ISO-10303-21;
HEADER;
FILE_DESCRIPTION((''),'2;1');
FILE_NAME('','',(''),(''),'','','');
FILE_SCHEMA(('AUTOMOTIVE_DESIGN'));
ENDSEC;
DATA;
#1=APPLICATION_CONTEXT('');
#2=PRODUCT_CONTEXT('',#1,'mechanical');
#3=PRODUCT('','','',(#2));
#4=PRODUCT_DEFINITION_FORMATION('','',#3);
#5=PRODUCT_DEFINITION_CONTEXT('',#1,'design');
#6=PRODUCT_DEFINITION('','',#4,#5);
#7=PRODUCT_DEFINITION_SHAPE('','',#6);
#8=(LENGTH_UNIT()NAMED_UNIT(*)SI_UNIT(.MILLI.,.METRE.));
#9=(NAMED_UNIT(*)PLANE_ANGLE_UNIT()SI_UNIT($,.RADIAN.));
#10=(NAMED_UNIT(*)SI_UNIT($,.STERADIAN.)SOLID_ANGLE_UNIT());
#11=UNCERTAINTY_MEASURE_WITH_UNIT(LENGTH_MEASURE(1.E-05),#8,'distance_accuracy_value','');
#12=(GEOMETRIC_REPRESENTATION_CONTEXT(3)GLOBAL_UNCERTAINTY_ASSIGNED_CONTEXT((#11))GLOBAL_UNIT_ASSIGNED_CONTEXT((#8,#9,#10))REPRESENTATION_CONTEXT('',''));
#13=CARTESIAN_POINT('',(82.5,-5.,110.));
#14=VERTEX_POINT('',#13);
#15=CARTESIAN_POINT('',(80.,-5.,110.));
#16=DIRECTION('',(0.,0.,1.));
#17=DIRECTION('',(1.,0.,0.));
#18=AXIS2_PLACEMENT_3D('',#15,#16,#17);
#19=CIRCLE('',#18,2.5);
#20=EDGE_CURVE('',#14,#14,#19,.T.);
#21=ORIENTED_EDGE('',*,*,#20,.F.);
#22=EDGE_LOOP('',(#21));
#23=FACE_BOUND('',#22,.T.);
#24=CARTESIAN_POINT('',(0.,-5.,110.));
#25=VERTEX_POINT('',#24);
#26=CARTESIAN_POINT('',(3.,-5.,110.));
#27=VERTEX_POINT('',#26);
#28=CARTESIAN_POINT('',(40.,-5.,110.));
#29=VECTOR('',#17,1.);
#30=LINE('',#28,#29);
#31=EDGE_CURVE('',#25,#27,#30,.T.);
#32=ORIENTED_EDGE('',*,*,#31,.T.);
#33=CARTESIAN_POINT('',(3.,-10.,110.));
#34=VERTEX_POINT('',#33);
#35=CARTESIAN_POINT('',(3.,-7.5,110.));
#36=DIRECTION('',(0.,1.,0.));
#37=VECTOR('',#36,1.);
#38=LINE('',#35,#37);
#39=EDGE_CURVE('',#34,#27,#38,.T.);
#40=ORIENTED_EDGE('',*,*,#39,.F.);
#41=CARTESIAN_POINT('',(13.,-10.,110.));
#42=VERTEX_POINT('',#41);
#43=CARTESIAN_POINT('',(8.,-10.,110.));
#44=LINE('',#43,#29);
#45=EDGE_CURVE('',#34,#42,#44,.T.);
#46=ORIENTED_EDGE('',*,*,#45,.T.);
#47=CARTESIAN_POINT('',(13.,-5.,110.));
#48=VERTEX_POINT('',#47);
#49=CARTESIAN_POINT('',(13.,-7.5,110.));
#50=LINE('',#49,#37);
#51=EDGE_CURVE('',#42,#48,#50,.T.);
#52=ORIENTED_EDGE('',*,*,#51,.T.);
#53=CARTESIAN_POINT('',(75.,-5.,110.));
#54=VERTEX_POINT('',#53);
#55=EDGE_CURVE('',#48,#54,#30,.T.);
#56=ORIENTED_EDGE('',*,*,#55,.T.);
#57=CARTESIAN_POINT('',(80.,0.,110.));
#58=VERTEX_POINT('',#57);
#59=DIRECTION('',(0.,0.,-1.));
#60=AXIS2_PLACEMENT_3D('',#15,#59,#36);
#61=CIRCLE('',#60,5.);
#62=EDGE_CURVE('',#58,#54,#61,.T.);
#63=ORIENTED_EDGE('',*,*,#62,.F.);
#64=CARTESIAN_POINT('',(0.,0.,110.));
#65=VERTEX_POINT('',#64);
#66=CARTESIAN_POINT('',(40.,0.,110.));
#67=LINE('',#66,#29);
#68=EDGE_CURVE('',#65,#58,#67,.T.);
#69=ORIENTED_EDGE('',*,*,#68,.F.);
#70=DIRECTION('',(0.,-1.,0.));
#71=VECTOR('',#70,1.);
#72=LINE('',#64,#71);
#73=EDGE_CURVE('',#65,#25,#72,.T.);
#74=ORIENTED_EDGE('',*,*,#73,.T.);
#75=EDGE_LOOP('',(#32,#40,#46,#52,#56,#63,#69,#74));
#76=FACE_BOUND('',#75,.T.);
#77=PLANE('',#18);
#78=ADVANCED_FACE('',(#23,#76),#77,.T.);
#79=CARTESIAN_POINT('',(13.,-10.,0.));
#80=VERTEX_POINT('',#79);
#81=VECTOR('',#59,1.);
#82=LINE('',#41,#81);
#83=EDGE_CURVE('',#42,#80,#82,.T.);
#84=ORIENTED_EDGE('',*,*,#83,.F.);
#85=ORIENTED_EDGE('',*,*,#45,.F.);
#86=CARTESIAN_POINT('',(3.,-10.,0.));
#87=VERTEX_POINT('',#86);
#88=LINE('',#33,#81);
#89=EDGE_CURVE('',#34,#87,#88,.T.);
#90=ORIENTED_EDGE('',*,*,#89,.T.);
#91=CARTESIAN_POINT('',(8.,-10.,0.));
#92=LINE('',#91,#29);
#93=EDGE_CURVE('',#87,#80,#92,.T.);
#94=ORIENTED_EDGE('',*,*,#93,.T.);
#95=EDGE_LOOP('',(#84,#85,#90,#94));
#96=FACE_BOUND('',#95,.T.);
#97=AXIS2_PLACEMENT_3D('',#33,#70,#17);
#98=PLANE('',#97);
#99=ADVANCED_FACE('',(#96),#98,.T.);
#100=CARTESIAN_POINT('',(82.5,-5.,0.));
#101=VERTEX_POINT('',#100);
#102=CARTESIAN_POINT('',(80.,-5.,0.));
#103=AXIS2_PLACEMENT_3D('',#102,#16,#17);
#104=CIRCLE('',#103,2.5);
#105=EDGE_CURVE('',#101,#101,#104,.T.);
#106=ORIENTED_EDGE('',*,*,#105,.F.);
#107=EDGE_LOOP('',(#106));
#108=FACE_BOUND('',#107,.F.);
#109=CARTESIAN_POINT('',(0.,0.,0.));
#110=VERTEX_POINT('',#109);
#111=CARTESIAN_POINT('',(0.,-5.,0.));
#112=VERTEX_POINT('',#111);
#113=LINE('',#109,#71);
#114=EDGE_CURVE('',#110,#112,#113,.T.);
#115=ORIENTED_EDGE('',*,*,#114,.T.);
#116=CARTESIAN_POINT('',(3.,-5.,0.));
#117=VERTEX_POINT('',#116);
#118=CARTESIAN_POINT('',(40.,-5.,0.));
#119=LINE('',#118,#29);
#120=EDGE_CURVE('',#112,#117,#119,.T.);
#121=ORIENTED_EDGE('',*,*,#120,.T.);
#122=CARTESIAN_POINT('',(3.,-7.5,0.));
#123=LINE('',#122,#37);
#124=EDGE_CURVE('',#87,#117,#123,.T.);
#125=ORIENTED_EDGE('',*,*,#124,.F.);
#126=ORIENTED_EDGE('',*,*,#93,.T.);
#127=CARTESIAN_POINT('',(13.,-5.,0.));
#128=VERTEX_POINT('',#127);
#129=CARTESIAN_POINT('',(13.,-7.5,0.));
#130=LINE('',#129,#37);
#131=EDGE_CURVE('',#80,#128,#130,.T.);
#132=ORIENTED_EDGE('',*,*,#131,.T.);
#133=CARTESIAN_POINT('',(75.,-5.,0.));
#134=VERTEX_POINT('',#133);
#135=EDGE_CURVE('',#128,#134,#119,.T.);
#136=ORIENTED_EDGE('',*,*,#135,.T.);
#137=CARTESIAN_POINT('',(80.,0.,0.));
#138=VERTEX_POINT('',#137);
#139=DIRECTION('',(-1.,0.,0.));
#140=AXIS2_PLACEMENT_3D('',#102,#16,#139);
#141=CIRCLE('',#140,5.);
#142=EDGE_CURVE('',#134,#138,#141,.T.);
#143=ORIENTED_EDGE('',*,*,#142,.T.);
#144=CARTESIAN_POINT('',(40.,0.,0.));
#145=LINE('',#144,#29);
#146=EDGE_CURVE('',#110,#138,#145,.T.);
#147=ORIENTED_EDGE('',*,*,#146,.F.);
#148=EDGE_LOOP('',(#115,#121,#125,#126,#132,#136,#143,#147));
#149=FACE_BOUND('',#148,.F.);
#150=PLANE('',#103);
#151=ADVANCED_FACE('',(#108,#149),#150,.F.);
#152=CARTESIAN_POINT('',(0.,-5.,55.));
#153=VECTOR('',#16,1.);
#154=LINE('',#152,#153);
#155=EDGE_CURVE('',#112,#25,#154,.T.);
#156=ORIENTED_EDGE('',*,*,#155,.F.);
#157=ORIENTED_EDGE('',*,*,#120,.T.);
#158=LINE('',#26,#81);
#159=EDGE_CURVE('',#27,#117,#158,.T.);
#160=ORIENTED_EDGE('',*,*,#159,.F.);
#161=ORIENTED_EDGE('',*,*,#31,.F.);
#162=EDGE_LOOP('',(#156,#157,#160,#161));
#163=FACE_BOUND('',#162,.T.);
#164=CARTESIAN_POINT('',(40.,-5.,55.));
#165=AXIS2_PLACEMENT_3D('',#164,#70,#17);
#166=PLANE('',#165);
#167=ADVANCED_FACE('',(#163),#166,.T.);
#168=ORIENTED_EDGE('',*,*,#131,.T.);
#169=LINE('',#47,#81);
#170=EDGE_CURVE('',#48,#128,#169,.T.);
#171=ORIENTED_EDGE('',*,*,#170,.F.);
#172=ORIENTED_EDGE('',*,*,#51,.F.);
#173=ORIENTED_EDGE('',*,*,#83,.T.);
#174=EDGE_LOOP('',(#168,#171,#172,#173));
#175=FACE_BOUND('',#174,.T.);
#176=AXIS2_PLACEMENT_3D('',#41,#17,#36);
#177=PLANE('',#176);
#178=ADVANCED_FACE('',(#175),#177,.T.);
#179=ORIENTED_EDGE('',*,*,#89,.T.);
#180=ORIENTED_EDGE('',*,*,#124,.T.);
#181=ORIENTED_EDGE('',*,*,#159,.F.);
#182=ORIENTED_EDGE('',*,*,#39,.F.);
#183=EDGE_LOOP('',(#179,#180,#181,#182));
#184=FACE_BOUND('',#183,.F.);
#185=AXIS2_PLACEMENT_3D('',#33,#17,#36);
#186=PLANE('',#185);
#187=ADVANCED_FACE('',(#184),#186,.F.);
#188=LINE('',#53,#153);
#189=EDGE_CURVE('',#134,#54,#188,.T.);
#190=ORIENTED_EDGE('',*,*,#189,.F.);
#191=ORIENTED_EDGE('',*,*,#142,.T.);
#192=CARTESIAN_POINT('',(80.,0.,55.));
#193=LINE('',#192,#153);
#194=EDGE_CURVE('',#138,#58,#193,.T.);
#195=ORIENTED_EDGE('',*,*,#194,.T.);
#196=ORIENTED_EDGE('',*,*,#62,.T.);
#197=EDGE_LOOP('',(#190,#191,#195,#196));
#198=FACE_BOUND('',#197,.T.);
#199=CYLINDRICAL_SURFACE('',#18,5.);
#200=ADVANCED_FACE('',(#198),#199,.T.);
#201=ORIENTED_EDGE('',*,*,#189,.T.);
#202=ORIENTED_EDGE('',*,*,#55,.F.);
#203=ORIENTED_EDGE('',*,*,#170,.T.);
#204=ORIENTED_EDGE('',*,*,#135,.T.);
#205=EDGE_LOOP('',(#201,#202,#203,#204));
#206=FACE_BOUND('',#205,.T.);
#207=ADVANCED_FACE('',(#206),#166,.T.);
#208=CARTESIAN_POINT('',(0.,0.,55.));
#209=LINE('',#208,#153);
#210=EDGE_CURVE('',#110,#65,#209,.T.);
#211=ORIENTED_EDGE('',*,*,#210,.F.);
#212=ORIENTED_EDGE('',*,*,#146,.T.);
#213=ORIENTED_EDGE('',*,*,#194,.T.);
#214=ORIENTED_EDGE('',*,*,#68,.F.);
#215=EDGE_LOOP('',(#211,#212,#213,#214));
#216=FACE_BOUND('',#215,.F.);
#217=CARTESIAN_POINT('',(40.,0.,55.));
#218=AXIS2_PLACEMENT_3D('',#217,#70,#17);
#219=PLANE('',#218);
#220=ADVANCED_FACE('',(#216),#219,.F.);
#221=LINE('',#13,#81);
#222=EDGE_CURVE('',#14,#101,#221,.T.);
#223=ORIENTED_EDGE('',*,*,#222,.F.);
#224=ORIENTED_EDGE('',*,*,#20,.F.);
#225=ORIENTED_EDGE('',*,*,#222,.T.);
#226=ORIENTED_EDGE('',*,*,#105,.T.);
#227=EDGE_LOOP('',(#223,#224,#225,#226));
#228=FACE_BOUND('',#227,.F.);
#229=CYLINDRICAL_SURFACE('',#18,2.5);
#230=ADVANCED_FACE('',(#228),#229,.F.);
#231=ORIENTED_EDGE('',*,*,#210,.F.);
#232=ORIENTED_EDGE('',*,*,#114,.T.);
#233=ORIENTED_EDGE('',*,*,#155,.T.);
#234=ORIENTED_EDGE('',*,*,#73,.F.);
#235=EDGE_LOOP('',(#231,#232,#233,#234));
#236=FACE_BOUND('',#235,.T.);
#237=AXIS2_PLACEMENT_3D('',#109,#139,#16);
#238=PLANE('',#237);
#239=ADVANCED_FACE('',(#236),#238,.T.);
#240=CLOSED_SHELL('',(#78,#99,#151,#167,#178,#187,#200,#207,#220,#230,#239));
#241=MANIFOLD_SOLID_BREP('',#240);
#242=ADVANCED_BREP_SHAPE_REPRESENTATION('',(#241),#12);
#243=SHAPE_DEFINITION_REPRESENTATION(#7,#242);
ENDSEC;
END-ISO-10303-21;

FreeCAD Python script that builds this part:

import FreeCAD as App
import Part
import Sketcher
from FreeCAD import Vector
Q = App.Units.Quantity


def add_polygon(sketch, points):
    """Adds a closed chain of lines whose ends are joined by coincident constraints."""
    first, n = sketch.GeometryCount, len(points)
    for a, b in zip(points, points[1:] + points[:1]):
        sketch.addGeometry(Part.LineSegment(App.Vector(*a, 0), App.Vector(*b, 0)), False)
    for i in range(n):
        sketch.addConstraint(Sketcher.Constraint("Coincident", first + i, 2, first + (i + 1) % n, 1))

doc = App.newDocument("Part")
params = doc.addObject("Spreadsheet::Sheet", "Params")
for row, (alias, value) in enumerate([
    ("sketch1_width", "80 mm"),
    ("sketch1_height", "110 mm"),
    ("pad1_length", "5 mm"),
    ("sketch2_diameter", "10 mm"),
    ("sketch2_width", "10 mm"),
    ("sketch2_height", "5 mm"),
    ("pad2_length", "110 mm"),
    ("sketch3_diameter", "5 mm"),
], start=1):
    params.set(f"A{row}", alias)
    params.set(f"B{row}", "=" + value)
    params.setAlias(f"B{row}", alias)

body = doc.addObject("PartDesign::Body", "Body")

sketch1 = body.newObject("Sketcher::SketchObject", "Sketch")
sketch1.AttachmentSupport = (doc.getObject("XZ_Plane"), [""])
sketch1.MapMode = "FlatFace"
add_polygon(sketch1, [(0, 110), (0, 0), (80, 0), (80, 110)])
sketch1.addConstraint(Sketcher.Constraint("Vertical", 0))
sketch1.addConstraint(Sketcher.Constraint("Horizontal", 1))
sketch1.addConstraint(Sketcher.Constraint("Vertical", 2))
sketch1.addConstraint(Sketcher.Constraint("Horizontal", 3))
sketch1.addConstraint(Sketcher.Constraint("Coincident", 0, 2, -1, 1))
sketch1.addConstraint(Sketcher.Constraint("DistanceX", 1, 1, 1, 2, Q("80 mm")))
sketch1.addConstraint(Sketcher.Constraint("DistanceY", 0, 2, 0, 1, Q("110 mm")))
sketch1.setExpression("Constraints[9]", "Params.sketch1_width")
sketch1.setExpression("Constraints[10]", "Params.sketch1_height")
pad1 = body.newObject("PartDesign::Pad", "Pad")
pad1.Profile = sketch1
pad1.setExpression("Length", "Params.pad1_length")

sketch2 = body.newObject("Sketcher::SketchObject", "Sketch001")
sketch2.AttachmentSupport = (doc.getObject("XY_Plane"), [""])
sketch2.MapMode = "FlatFace"
sketch2.AttachmentOffset = App.Placement(Vector(0, 0, 110), App.Rotation())
sketch2.addGeometry(Part.Circle(Vector(80, -5, 0), Vector(0, 0, 1), 5), False)
add_polygon(sketch2, [(3, -5), (3, -10), (13, -10), (13, -5)])
sketch2.addConstraint(Sketcher.Constraint("Vertical", 1))
sketch2.addConstraint(Sketcher.Constraint("Horizontal", 2))
sketch2.addConstraint(Sketcher.Constraint("Vertical", 3))
sketch2.addConstraint(Sketcher.Constraint("Horizontal", 4))
sketch2.addConstraint(Sketcher.Constraint("Horizontal", 0, 3, 3, 2))
sketch2.addConstraint(Sketcher.Constraint("Diameter", 0, Q("10 mm")))
sketch2.addConstraint(Sketcher.Constraint("DistanceX", 2, 1, 2, 2, Q("10 mm")))
sketch2.addConstraint(Sketcher.Constraint("DistanceY", 1, 2, 1, 1, Q("5 mm")))
sketch2.addConstraint(Sketcher.Constraint("DistanceX", -1, 1, 0, 3, Q("80 mm")))
sketch2.addConstraint(Sketcher.Constraint("DistanceY", 0, 3, -1, 1, Q("5 mm")))
sketch2.addConstraint(Sketcher.Constraint("DistanceX", -1, 1, 1, 2, Q("3 mm")))
sketch2.setExpression("Constraints[9]", "Params.sketch2_diameter")
sketch2.setExpression("Constraints[10]", "Params.sketch2_width")
sketch2.setExpression("Constraints[11]", "Params.sketch2_height")
pad2 = body.newObject("PartDesign::Pad", "Pad001")
pad2.Profile = sketch2
pad2.setExpression("Length", "Params.pad2_length")
pad2.Reversed = True

sketch3 = body.newObject("Sketcher::SketchObject", "Sketch002")
sketch3.AttachmentSupport = (doc.getObject("XY_Plane"), [""])
sketch3.MapMode = "FlatFace"
sketch3.AttachmentOffset = App.Placement(Vector(0, 0, 110), App.Rotation())
sketch3.addGeometry(Part.Circle(Vector(80, -5, 0), Vector(0, 0, 1), 2.5), False)
sketch3.addConstraint(Sketcher.Constraint("Diameter", 0, Q("5 mm")))
sketch3.addConstraint(Sketcher.Constraint("DistanceX", -1, 1, 0, 3, Q("80 mm")))
sketch3.addConstraint(Sketcher.Constraint("DistanceY", 0, 3, -1, 1, Q("5 mm")))
sketch3.setExpression("Constraints[0]", "Params.sketch3_diameter")
pocket1 = body.newObject("PartDesign::Pocket", "Pocket")
pocket1.Profile = sketch3
pocket1.Type = "ThroughAll"

doc.recompute()
